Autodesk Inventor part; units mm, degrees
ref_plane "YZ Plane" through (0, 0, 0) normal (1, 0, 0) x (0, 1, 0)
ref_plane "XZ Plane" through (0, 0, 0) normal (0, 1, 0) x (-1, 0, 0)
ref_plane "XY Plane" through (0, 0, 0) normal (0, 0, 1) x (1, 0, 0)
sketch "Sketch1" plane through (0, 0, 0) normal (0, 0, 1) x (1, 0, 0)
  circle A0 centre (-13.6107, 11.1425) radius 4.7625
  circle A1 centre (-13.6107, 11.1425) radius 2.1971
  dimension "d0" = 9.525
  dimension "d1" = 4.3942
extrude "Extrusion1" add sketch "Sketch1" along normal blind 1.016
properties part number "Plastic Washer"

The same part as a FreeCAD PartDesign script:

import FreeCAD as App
import Part
import Sketcher
from FreeCAD import Vector
Q = App.Units.Quantity

doc = App.newDocument("Part")
body = doc.addObject("PartDesign::Body", "Body")

# Sketch on XY plane
sketch1 = body.newObject("Sketcher::SketchObject", "Sketch")
sketch1.AttachmentSupport = (doc.getObject("XY_Plane"), [""])
sketch1.MapMode = "FlatFace"
sketch1.addGeometry(Part.Circle(Vector(-13.6107, 11.1425, 0), Vector(0, 0, 1), 4.7625), False)
sketch1.addGeometry(Part.Circle(Vector(-13.6107, 11.1425, 0), Vector(0, 0, 1), 2.1971), False)
sketch1.addConstraint(Sketcher.Constraint("Coincident", 1, 3, 0, 3))
sketch1.addConstraint(Sketcher.Constraint("Diameter", 0, Q("0.375 in")))
sketch1.addConstraint(Sketcher.Constraint("Diameter", 1, Q("0.173 in")))
sketch1.addConstraint(Sketcher.Constraint("DistanceX", 0, 3, -1, 1, 13.6107))
sketch1.addConstraint(Sketcher.Constraint("DistanceY", -1, 1, 0, 3, 11.1425))
pad1 = body.newObject("PartDesign::Pad", "Pad")
pad1.Profile = sketch1
pad1.Length = Q("0.04 in")

doc.recompute()
